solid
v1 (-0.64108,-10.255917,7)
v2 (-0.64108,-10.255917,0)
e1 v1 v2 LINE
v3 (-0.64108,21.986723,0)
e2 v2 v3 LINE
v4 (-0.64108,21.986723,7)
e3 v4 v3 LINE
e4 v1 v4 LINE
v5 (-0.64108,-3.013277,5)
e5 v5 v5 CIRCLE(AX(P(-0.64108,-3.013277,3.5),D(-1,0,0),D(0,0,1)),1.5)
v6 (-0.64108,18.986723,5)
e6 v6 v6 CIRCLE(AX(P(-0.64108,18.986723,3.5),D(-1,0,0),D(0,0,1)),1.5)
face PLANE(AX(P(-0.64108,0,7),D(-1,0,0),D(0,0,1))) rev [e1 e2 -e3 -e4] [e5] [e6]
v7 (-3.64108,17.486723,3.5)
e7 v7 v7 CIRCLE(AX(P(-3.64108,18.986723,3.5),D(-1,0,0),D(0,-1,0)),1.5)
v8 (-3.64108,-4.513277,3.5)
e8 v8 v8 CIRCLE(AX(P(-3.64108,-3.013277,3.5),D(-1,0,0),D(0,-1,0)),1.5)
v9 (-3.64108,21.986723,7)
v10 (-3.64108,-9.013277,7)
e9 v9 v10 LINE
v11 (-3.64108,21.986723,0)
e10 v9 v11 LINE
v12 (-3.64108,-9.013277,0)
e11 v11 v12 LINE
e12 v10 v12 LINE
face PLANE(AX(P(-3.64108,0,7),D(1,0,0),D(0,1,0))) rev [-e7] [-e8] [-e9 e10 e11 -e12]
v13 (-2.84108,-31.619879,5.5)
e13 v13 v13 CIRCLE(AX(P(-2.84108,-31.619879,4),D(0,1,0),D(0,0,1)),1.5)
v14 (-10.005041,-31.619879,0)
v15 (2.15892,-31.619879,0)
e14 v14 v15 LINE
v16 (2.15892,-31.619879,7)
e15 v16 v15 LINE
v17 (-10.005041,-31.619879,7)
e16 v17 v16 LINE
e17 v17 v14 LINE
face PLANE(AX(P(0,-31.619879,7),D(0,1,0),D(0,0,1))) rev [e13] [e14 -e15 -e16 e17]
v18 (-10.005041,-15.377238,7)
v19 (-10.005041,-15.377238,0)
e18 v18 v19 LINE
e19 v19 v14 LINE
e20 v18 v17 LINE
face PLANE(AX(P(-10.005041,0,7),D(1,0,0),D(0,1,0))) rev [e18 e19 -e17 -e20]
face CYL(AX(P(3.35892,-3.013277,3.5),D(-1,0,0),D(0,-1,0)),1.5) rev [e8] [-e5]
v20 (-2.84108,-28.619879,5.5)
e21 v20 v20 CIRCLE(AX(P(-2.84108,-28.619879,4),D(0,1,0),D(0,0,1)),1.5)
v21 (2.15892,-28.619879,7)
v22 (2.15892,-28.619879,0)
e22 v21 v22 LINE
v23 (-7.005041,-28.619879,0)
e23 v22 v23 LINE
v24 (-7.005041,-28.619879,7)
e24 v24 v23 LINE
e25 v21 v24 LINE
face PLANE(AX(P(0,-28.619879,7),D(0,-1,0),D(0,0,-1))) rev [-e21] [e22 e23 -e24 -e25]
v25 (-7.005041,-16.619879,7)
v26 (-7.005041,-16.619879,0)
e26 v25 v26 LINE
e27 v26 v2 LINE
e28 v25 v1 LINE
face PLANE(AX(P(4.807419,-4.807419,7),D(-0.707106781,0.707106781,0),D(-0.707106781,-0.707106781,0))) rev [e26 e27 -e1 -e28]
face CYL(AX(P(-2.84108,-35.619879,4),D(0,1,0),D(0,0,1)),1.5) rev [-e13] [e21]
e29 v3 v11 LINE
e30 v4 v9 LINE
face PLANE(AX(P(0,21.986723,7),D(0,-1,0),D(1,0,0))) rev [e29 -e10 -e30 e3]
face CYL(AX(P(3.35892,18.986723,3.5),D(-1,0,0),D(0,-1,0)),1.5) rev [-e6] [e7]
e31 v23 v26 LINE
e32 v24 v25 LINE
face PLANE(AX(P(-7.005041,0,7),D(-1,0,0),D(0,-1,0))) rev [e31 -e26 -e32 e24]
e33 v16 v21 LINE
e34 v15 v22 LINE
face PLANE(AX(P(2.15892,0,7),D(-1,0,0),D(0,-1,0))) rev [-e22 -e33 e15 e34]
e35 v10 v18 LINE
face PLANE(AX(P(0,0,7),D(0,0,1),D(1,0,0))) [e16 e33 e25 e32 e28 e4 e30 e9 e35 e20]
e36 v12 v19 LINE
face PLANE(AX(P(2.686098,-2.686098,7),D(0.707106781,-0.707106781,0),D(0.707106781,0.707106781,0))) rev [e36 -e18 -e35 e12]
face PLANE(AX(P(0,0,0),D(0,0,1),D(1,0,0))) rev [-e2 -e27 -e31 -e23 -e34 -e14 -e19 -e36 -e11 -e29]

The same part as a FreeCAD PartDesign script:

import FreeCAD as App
import Part
import Sketcher
from FreeCAD import Vector
Q = App.Units.Quantity

doc = App.newDocument("Part")
body = doc.addObject("PartDesign::Body", "Body")

# Sketch on XY plane
sketch1 = body.newObject("Sketcher::SketchObject", "Sketch")
sketch1.AttachmentSupport = (doc.getObject("XY_Plane"), [""])
sketch1.MapMode = "FlatFace"
sketch1.addGeometry([
    Part.LineSegment(Vector(-0.6, 22, 0), Vector(-3.6, 22, 0)),  # 0
    Part.LineSegment(Vector(-3.6, 22, 0), Vector(-3.6, -9, 0)),  # 1
    Part.LineSegment(Vector(-3.6, -9, 0), Vector(-10, -15.4, 0)),  # 2
    Part.LineSegment(Vector(-10, -15.4, 0), Vector(-10, -31.6, 0)),  # 3
    Part.LineSegment(Vector(-10, -31.6, 0), Vector(2.2, -31.6, 0)),  # 4
    Part.LineSegment(Vector(2.2, -31.6, 0), Vector(2.2, -28.6, 0)),  # 5
    Part.LineSegment(Vector(2.2, -28.6, 0), Vector(-7, -28.6, 0)),  # 6
    Part.LineSegment(Vector(-7, -28.6, 0), Vector(-7, -16.6, 0)),  # 7
    Part.LineSegment(Vector(-7, -16.6, 0), Vector(-0.6, -10.3, 0)),  # 8
    Part.LineSegment(Vector(-0.6, -10.3, 0), Vector(-0.6, 22, 0)),  # 9
], False)
sketch1.addConstraint([
    Sketcher.Constraint("Coincident", 0, 2, 1, 1),
    Sketcher.Constraint("Coincident", 1, 2, 2, 1),
    Sketcher.Constraint("Coincident", 2, 2, 3, 1),
    Sketcher.Constraint("Coincident", 3, 2, 4, 1),
    Sketcher.Constraint("Coincident", 4, 2, 5, 1),
    Sketcher.Constraint("Coincident", 5, 2, 6, 1),
    Sketcher.Constraint("Coincident", 6, 2, 7, 1),
    Sketcher.Constraint("Coincident", 7, 2, 8, 1),
    Sketcher.Constraint("Coincident", 8, 2, 9, 1),
    Sketcher.Constraint("Coincident", 9, 2, 0, 1),
    Sketcher.Constraint("Horizontal", 0),
    Sketcher.Constraint("Vertical", 1),
    Sketcher.Constraint("Vertical", 3),
    Sketcher.Constraint("Horizontal", 4),
    Sketcher.Constraint("Vertical", 5),
    Sketcher.Constraint("Horizontal", 6),
    Sketcher.Constraint("Vertical", 7),
    Sketcher.Constraint("Vertical", 9),
    Sketcher.Constraint("Parallel", 2, 8),
    Sketcher.Constraint("Equal", 0, 5),
    Sketcher.Constraint("Equal", 2, 8),
    Sketcher.Constraint("DistanceX", 0, 2, 0, 1, 3.0),
    Sketcher.Constraint("DistanceY", 1, 2, 1, 1, 31.0),
    Sketcher.Constraint("DistanceY", 7, 1, 7, 2, 12.0),
    Sketcher.Constraint("Angle", 2, Q("-135 deg")),
    Sketcher.Constraint("Distance", 2, 9.0),
    Sketcher.Constraint("DistanceX", 1, 2, 4, 2, 5.8),
    Sketcher.Constraint("DistanceY", 3, 2, 3, 1, 16.242641),
    Sketcher.Constraint("DistanceX", 0, 2, -1, 1, 3.64108),
    Sketcher.Constraint("DistanceY", 3, 2, -1, 1, 31.619879),
])
pad1 = body.newObject("PartDesign::Pad", "Pad")
pad1.Profile = sketch1
pad1.Length = 7

# Sketch on YZ plane
sketch2 = body.newObject("Sketcher::SketchObject", "Sketch001")
sketch2.AttachmentSupport = (doc.getObject("YZ_Plane"), [""])
sketch2.MapMode = "FlatFace"
sketch2.AttachmentOffset = App.Placement(Vector(0, 0, -3.64108), App.Rotation())
sketch2.addGeometry([
    Part.Circle(Vector(19, 3.5, 0), Vector(0, 0, 1), 1.5),
    Part.Circle(Vector(-3, 3.5, 0), Vector(0, 0, 1), 1.5),
], False)
sketch2.addConstraint([
    Sketcher.Constraint("Equal", 0, 1),
    Sketcher.Constraint("Horizontal", 0, 3, 1, 3),
    Sketcher.Constraint("Diameter", 0, 3.0),
    Sketcher.Constraint("DistanceX", 1, 3, 0, 3, 22.0),
    Sketcher.Constraint("DistanceY", -1, 1, 0, 3, 3.5),
    Sketcher.Constraint("DistanceX", -1, 1, 0, 3, 18.986723),
])
pocket1 = body.newObject("PartDesign::Pocket", "Pocket")
pocket1.Profile = sketch2
pocket1.Length = 7
pocket1.Reversed = True

# Sketch on XZ plane
sketch3 = body.newObject("Sketcher::SketchObject", "Sketch002")
sketch3.AttachmentSupport = (doc.getObject("XZ_Plane"), [""])
sketch3.MapMode = "FlatFace"
sketch3.AttachmentOffset = App.Placement(Vector(0, 0, 28.619879), App.Rotation())
sketch3.addGeometry(Part.Circle(Vector(-2.8, 4, 0), Vector(0, 0, 1), 1.5), False)
sketch3.addConstraint([
    Sketcher.Constraint("Diameter", 0, 3.0),
    Sketcher.Constraint("DistanceY", -1, 1, 0, 3, 4.0),
    Sketcher.Constraint("DistanceX", 0, 3, -1, 1, 2.84108),
])
pocket2 = body.newObject("PartDesign::Pocket", "Pocket001")
pocket2.Profile = sketch3
pocket2.Length = 7
pocket2.Reversed = True

doc.recompute()
